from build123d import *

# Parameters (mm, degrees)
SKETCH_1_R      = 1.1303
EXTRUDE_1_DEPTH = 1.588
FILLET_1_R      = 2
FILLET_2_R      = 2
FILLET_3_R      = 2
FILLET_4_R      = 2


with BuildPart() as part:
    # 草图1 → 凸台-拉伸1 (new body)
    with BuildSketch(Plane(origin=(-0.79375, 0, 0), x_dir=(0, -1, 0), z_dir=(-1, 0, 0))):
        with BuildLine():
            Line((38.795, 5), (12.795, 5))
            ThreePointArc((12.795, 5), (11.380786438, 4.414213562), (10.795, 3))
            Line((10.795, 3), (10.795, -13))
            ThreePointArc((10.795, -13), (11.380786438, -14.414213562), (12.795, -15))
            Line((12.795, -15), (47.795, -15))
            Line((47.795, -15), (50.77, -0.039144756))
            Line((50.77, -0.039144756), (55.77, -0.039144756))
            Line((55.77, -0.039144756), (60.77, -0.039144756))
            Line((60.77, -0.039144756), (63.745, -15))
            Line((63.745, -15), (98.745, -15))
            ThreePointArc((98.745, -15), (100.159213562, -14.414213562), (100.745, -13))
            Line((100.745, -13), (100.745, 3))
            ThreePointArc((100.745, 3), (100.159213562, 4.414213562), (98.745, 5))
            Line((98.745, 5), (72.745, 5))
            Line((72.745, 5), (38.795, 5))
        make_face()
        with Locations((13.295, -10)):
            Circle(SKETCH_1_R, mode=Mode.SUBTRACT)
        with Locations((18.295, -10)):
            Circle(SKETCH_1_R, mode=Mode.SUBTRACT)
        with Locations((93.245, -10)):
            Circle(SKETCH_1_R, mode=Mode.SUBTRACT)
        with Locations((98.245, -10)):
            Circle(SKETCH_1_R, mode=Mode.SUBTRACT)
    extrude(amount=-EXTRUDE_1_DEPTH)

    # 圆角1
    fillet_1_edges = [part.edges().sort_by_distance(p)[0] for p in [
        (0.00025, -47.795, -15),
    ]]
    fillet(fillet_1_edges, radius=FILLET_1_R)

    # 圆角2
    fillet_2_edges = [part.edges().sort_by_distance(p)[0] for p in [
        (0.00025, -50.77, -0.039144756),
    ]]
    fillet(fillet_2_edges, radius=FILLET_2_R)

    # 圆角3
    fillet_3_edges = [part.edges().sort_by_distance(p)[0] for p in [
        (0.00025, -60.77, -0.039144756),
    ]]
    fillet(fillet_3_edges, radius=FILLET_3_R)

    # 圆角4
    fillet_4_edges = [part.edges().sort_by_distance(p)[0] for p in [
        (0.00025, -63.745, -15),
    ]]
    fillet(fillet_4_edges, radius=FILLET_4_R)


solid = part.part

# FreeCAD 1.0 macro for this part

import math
import FreeCAD as App
import Part
import Sketcher


def edges_at(feature, points):
    """Names of the edges that pass closest to the given points."""
    edges = feature.Shape.Edges
    near = lambda p: min(range(len(edges)), key=lambda i: edges[i].distToShape(Part.Vertex(*p))[0])
    return sorted({f"Edge{near(p) + 1}" for p in points})

doc = App.newDocument("Part")
body = doc.addObject("PartDesign::Body", "Body")

sketch1 = doc.addObject("Sketcher::SketchObject", "Sketch")
body.addObject(sketch1)
sketch1.AttachmentSupport = (doc.YZ_Plane, [""])
sketch1.MapMode = "FlatFace"
sketch1.AttachmentOffset = App.Placement(App.Vector(0, 0, -0.79375), App.Rotation())
sketch1.addGeometry(Part.ArcOfCircle(Part.Circle(App.Vector(-12.8, 3, 0), App.Vector(0, 0, 1), 2), math.radians(0), math.radians(90)), False)
sketch1.addGeometry(Part.LineSegment(App.Vector(-10.8, 3, 0), App.Vector(-10.8, -13, 0)), False)
sketch1.addGeometry(Part.ArcOfCircle(Part.Circle(App.Vector(-12.8, -13, 0), App.Vector(0, 0, 1), 2), math.radians(-90), math.radians(0)), False)
sketch1.addGeometry(Part.LineSegment(App.Vector(-12.8, -15, 0), App.Vector(-47.8, -15, 0)), False)
sketch1.addGeometry(Part.LineSegment(App.Vector(-47.8, -15, 0), App.Vector(-50.8, 0, 0)), False)
sketch1.addGeometry(Part.LineSegment(App.Vector(-50.8, 0, 0), App.Vector(-60.8, 0, 0)), False)
sketch1.addGeometry(Part.LineSegment(App.Vector(-60.8, 0, 0), App.Vector(-63.7, -15, 0)), False)
sketch1.addGeometry(Part.LineSegment(App.Vector(-63.7, -15, 0), App.Vector(-98.7, -15, 0)), False)
sketch1.addGeometry(Part.ArcOfCircle(Part.Circle(App.Vector(-98.7, -13, 0), App.Vector(0, 0, 1), 2), math.radians(-180), math.radians(-90)), False)
sketch1.addGeometry(Part.LineSegment(App.Vector(-100.7, -13, 0), App.Vector(-100.7, 3, 0)), False)
sketch1.addGeometry(Part.ArcOfCircle(Part.Circle(App.Vector(-98.7, 3, 0), App.Vector(0, 0, 1), 2), math.radians(90), math.radians(180)), False)
sketch1.addGeometry(Part.LineSegment(App.Vector(-98.7, 5, 0), App.Vector(-12.8, 5, 0)), False)
sketch1.addGeometry(Part.Circle(App.Vector(-13.3, -10, 0), App.Vector(0, 0, 1), 1.1), False)
sketch1.addGeometry(Part.Circle(App.Vector(-18.3, -10, 0), App.Vector(0, 0, 1), 1.1), False)
sketch1.addGeometry(Part.Circle(App.Vector(-93.2, -10, 0), App.Vector(0, 0, 1), 1.1), False)
sketch1.addGeometry(Part.Circle(App.Vector(-98.2, -10, 0), App.Vector(0, 0, 1), 1.1), False)
sketch1.addConstraint(Sketcher.Constraint("Tangent", 0, 1, 1, 1))
sketch1.addConstraint(Sketcher.Constraint("Tangent", 1, 2, 2, 2))
sketch1.addConstraint(Sketcher.Constraint("Tangent", 2, 1, 3, 1))
sketch1.addConstraint(Sketcher.Constraint("Coincident", 3, 2, 4, 1))
sketch1.addConstraint(Sketcher.Constraint("Coincident", 4, 2, 5, 1))
sketch1.addConstraint(Sketcher.Constraint("Coincident", 5, 2, 6, 1))
sketch1.addConstraint(Sketcher.Constraint("Coincident", 6, 2, 7, 1))
sketch1.addConstraint(Sketcher.Constraint("Tangent", 7, 2, 8, 2))
sketch1.addConstraint(Sketcher.Constraint("Tangent", 8, 1, 9, 1))
sketch1.addConstraint(Sketcher.Constraint("Tangent", 9, 2, 10, 2))
sketch1.addConstraint(Sketcher.Constraint("Tangent", 10, 1, 11, 1))
sketch1.addConstraint(Sketcher.Constraint("Tangent", 11, 2, 0, 2))
sketch1.addConstraint(Sketcher.Constraint("Vertical", 1))
sketch1.addConstraint(Sketcher.Constraint("Horizontal", 3))
sketch1.addConstraint(Sketcher.Constraint("Horizontal", 5))
sketch1.addConstraint(Sketcher.Constraint("Horizontal", 7))
sketch1.addConstraint(Sketcher.Constraint("Vertical", 9))
sketch1.addConstraint(Sketcher.Constraint("Horizontal", 11))
sketch1.addConstraint(Sketcher.Constraint("Equal", 0, 2))
sketch1.addConstraint(Sketcher.Constraint("Equal", 2, 8))
sketch1.addConstraint(Sketcher.Constraint("Equal", 8, 10))
sketch1.addConstraint(Sketcher.Constraint("Equal", 12, 13))
sketch1.addConstraint(Sketcher.Constraint("Equal", 13, 14))
sketch1.addConstraint(Sketcher.Constraint("Equal", 14, 15))
sketch1.addConstraint(Sketcher.Constraint("Horizontal", 2, 3, 8, 3))
sketch1.addConstraint(Sketcher.Constraint("Horizontal", 12, 3, 13, 3))
sketch1.addConstraint(Sketcher.Constraint("Horizontal", 13, 3, 14, 3))
sketch1.addConstraint(Sketcher.Constraint("Horizontal", 14, 3, 15, 3))
sketch1.addConstraint(Sketcher.Constraint("Equal", 3, 7))
sketch1.addConstraint(Sketcher.Constraint("Equal", 4, 6))
sketch1.addConstraint(Sketcher.Constraint("Radius", 0, 2.0))
sketch1.addConstraint(Sketcher.Constraint("DistanceX", 3, 2, 3, 1, 35.0))
sketch1.addConstraint(Sketcher.Constraint("DistanceX", 5, 2, 5, 1, 10.0))
sketch1.addConstraint(Sketcher.Constraint("DistanceY", 1, 2, 1, 1, 16.0))
sketch1.addConstraint(Sketcher.Constraint("DistanceY", -1, 1, 0, 3, 3.0))
sketch1.addConstraint(Sketcher.Constraint("DistanceY", 12, 3, -1, 1, 10.0))
sketch1.addConstraint(Sketcher.Constraint("DistanceX", 13, 3, 12, 3, 5.0))
sketch1.addConstraint(Sketcher.Constraint("DistanceX", 15, 3, 14, 3, 5.0))
sketch1.addConstraint(Sketcher.Constraint("Diameter", 12, 2.2606))
sketch1.addConstraint(Sketcher.Constraint("DistanceX", 11, 1, 11, 2, 85.95))
sketch1.addConstraint(Sketcher.Constraint("DistanceX", 12, 3, 2, 3, 0.5))
sketch1.addConstraint(Sketcher.Constraint("DistanceX", 8, 3, 14, 3, 5.5))
sketch1.addConstraint(Sketcher.Constraint("DistanceX", 4, 2, -1, 1, 50.77))
sketch1.addConstraint(Sketcher.Constraint("Distance", 4, 15.25378))
pad1 = doc.addObject("PartDesign::Pad", "Pad")
body.addObject(pad1)
pad1.Profile = sketch1
pad1.Length = 1.588
doc.recompute()

fillet = doc.addObject("PartDesign::Fillet", "Fillet")
body.addObject(fillet)
fillet.Base = (pad1, edges_at(pad1, [(0, -47.795, -15)]))
fillet.Radius = 2
doc.recompute()

fillet2 = doc.addObject("PartDesign::Fillet", "Fillet001")
body.addObject(fillet2)
fillet2.Base = (fillet, edges_at(fillet, [(0, -50.77, -0.039)]))
fillet2.Radius = 2
doc.recompute()

fillet3 = doc.addObject("PartDesign::Fillet", "Fillet002")
body.addObject(fillet3)
fillet3.Base = (fillet2, edges_at(fillet2, [(0, -60.77, -0.039)]))
fillet3.Radius = 2
doc.recompute()

fillet4 = doc.addObject("PartDesign::Fillet", "Fillet003")
body.addObject(fillet4)
fillet4.Base = (fillet3, edges_at(fillet3, [(0, -63.745, -15)]))
fillet4.Radius = 2

doc.recompute()
